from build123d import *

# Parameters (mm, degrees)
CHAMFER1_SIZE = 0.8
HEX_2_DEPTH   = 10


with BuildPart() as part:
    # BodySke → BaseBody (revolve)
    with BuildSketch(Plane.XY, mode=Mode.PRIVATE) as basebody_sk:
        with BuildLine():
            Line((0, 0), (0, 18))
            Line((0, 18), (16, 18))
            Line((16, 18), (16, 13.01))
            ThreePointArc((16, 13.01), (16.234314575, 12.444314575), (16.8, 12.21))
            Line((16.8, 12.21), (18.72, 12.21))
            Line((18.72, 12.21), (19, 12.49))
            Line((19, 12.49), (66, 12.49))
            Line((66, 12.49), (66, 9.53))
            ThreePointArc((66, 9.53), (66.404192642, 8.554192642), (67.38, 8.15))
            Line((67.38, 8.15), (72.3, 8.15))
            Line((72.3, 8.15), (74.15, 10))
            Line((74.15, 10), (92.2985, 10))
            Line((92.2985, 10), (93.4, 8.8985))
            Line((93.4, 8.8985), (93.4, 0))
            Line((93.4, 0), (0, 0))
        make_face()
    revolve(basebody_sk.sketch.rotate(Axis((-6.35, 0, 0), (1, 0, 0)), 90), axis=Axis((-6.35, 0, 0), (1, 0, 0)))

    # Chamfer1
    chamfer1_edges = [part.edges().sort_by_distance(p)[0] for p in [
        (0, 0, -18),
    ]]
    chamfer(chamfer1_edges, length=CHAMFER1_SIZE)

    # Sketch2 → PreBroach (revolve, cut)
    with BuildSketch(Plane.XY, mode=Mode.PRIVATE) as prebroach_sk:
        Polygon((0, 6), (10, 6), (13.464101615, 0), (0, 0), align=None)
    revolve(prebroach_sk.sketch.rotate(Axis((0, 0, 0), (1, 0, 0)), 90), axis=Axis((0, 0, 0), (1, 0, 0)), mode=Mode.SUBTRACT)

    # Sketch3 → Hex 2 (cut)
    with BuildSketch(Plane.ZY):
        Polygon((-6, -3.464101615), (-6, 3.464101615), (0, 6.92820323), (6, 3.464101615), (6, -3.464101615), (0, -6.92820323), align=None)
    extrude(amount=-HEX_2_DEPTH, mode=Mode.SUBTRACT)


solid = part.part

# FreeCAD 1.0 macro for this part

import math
import FreeCAD as App
import Part
import Sketcher
Q = App.Units.Quantity


def edges_at(feature, points):
    """Names of the edges that pass closest to the given points."""
    edges = feature.Shape.Edges
    near = lambda p: min(range(len(edges)), key=lambda i: edges[i].distToShape(Part.Vertex(*p))[0])
    return sorted({f"Edge{near(p) + 1}" for p in points})

doc = App.newDocument("Part")
body = doc.addObject("PartDesign::Body", "Body")

# Sketch on XY plane
sketch1 = body.newObject("Sketcher::SketchObject", "Sketch")
sketch1.AttachmentSupport = (doc.getObject("XY_Plane"), [""])
sketch1.MapMode = "FlatFace"
sketch1.addGeometry([
    Part.LineSegment(App.Vector(0, 18, 0), App.Vector(0, 0, 0)),  # 0
    Part.LineSegment(App.Vector(0, 0, 0), App.Vector(93.4, 0, 0)),  # 1
    Part.LineSegment(App.Vector(93.4, 0, 0), App.Vector(93.4, 8.8985, 0)),  # 2
    Part.LineSegment(App.Vector(93.4, 8.8985, 0), App.Vector(92.2985, 10, 0)),  # 3
    Part.LineSegment(App.Vector(92.2985, 10, 0), App.Vector(74.15, 10, 0)),  # 4
    Part.LineSegment(App.Vector(74.15, 10, 0), App.Vector(72.3, 8.15, 0)),  # 5
    Part.LineSegment(App.Vector(72.3, 8.15, 0), App.Vector(67.38, 8.15, 0)),  # 6
    Part.ArcOfCircle(Part.Circle(App.Vector(67.38, 9.53, 0), App.Vector(0, 0, 1), 1.38), math.radians(180), math.radians(270)),  # 7
    Part.LineSegment(App.Vector(66, 9.53, 0), App.Vector(66, 12.49, 0)),  # 8
    Part.LineSegment(App.Vector(66, 12.49, 0), App.Vector(19, 12.49, 0)),  # 9
    Part.LineSegment(App.Vector(19, 12.49, 0), App.Vector(18.72, 12.21, 0)),  # 10
    Part.LineSegment(App.Vector(18.72, 12.21, 0), App.Vector(16.8, 12.21, 0)),  # 11
    Part.ArcOfCircle(Part.Circle(App.Vector(16.8, 13.01, 0), App.Vector(0, 0, 1), 0.8), math.radians(180), math.radians(270)),  # 12
    Part.LineSegment(App.Vector(16, 13.01, 0), App.Vector(16, 18, 0)),  # 13
    Part.LineSegment(App.Vector(16, 18, 0), App.Vector(0, 18, 0)),  # 14
], False)
sketch1.addConstraint([
    Sketcher.Constraint("Coincident", 0, 2, 1, 1),
    Sketcher.Constraint("Coincident", 1, 2, 2, 1),
    Sketcher.Constraint("Coincident", 2, 2, 3, 1),
    Sketcher.Constraint("Coincident", 3, 2, 4, 1),
    Sketcher.Constraint("Coincident", 4, 2, 5, 1),
    Sketcher.Constraint("Coincident", 5, 2, 6, 1),
    Sketcher.Constraint("Tangent", 6, 2, 7, 2),
    Sketcher.Constraint("Tangent", 7, 1, 8, 1),
    Sketcher.Constraint("Coincident", 8, 2, 9, 1),
    Sketcher.Constraint("Coincident", 9, 2, 10, 1),
    Sketcher.Constraint("Coincident", 10, 2, 11, 1),
    Sketcher.Constraint("Tangent", 11, 2, 12, 2),
    Sketcher.Constraint("Tangent", 12, 1, 13, 1),
    Sketcher.Constraint("Coincident", 13, 2, 14, 1),
    Sketcher.Constraint("Coincident", 14, 2, 0, 1),
    Sketcher.Constraint("Vertical", 0),
    Sketcher.Constraint("Horizontal", 1),
    Sketcher.Constraint("Vertical", 2),
    Sketcher.Constraint("Horizontal", 4),
    Sketcher.Constraint("Horizontal", 6),
    Sketcher.Constraint("Vertical", 8),
    Sketcher.Constraint("Horizontal", 9),
    Sketcher.Constraint("Horizontal", 11),
    Sketcher.Constraint("Vertical", 13),
    Sketcher.Constraint("Horizontal", 14),
    Sketcher.Constraint("Coincident", 0, 2, -1, 1),
    Sketcher.Constraint("Perpendicular", 3, 5),
    Sketcher.Constraint("Parallel", 5, 10),
    Sketcher.Constraint("Radius", 12, Q("0.8 mm")),
    Sketcher.Constraint("DistanceX", 9, 2, 9, 1, Q("47 mm")),
    Sketcher.Constraint("DistanceX", 14, 2, 14, 1, Q("16 mm")),
    Sketcher.Constraint("DistanceY", 0, 2, 0, 1, Q("18 mm")),
    Sketcher.Constraint("Angle", 3, Q("135 deg")),
    Sketcher.Constraint("Radius", 7, Q("1.38 mm")),
    Sketcher.Constraint("DistanceX", 1, 1, 1, 2, Q("93.4 mm")),
    Sketcher.Constraint("DistanceY", -1, 1, 3, 2, Q("10 mm")),
    Sketcher.Constraint("DistanceX", -1, 1, 7, 1, Q("66 mm")),
    Sketcher.Constraint("DistanceX", 6, 2, 6, 1, Q("4.92 mm")),
    Sketcher.Constraint("DistanceX", 11, 2, 11, 1, Q("1.92 mm")),
    Sketcher.Constraint("DistanceY", 8, 1, 8, 2, Q("2.96 mm")),
    Sketcher.Constraint("DistanceY", 13, 1, 13, 2, Q("4.99 mm")),
    Sketcher.Constraint("DistanceX", 4, 2, 4, 1, Q("18.1485 mm")),
])
revolution = body.newObject("PartDesign::Revolution", "Revolution")
revolution.Profile = sketch1
revolution.ReferenceAxis = (sketch1, ["H_Axis"])
revolution.Angle = 360
doc.recompute()

chamfer = body.newObject("PartDesign::Chamfer", "Chamfer")
chamfer.Base = (revolution, edges_at(revolution, [(0, 0, -18)]))
chamfer.Size = 0.8

# Sketch on XY plane
sketch2 = body.newObject("Sketcher::SketchObject", "Sketch001")
sketch2.AttachmentSupport = (doc.getObject("XY_Plane"), [""])
sketch2.MapMode = "FlatFace"
sketch2.addGeometry([
    Part.LineSegment(App.Vector(10, 6, 0), App.Vector(0, 6, 0)),
    Part.LineSegment(App.Vector(0, 6, 0), App.Vector(0, 0, 0)),
    Part.LineSegment(App.Vector(0, 0, 0), App.Vector(13.464102, 0, 0)),
    Part.LineSegment(App.Vector(13.464102, 0, 0), App.Vector(10, 6, 0)),
], False)
sketch2.addConstraint([
    Sketcher.Constraint("Coincident", 0, 2, 1, 1),
    Sketcher.Constraint("Coincident", 1, 2, 2, 1),
    Sketcher.Constraint("Coincident", 2, 2, 3, 1),
    Sketcher.Constraint("Coincident", 3, 2, 0, 1),
    Sketcher.Constraint("Horizontal", 0),
    Sketcher.Constraint("Vertical", 1),
    Sketcher.Constraint("Horizontal", 2),
    Sketcher.Constraint("Coincident", 1, 2, -1, 1),
    Sketcher.Constraint("DistanceX", 0, 2, 0, 1, Q("10 mm")),
    Sketcher.Constraint("DistanceY", 1, 2, 1, 1, Q("6 mm")),
    Sketcher.Constraint("Angle", 3, Q("120 deg")),
])
groove = body.newObject("PartDesign::Groove", "Groove")
groove.Profile = sketch2
groove.ReferenceAxis = (sketch2, ["H_Axis"])
groove.Angle = 360

# Sketch on YZ plane
sketch3 = body.newObject("Sketcher::SketchObject", "Sketch002")
sketch3.AttachmentSupport = (doc.getObject("YZ_Plane"), [""])
sketch3.MapMode = "FlatFace"
sketch3.addGeometry([
    Part.LineSegment(App.Vector(3.464102, -6, 0), App.Vector(-3.464102, -6, 0)),  # 0
    Part.LineSegment(App.Vector(-3.464102, -6, 0), App.Vector(-6.928203, 0, 0)),  # 1
    Part.LineSegment(App.Vector(-6.928203, 0, 0), App.Vector(-3.464102, 6, 0)),  # 2
    Part.LineSegment(App.Vector(-3.464102, 6, 0), App.Vector(3.464102, 6, 0)),  # 3
    Part.LineSegment(App.Vector(3.464102, 6, 0), App.Vector(6.928203, 0, 0)),  # 4
    Part.LineSegment(App.Vector(6.928203, 0, 0), App.Vector(3.464102, -6, 0)),  # 5
], False)
sketch3.addConstraint([
    Sketcher.Constraint("Coincident", 0, 2, 1, 1),
    Sketcher.Constraint("Coincident", 1, 2, 2, 1),
    Sketcher.Constraint("Coincident", 2, 2, 3, 1),
    Sketcher.Constraint("Coincident", 3, 2, 4, 1),
    Sketcher.Constraint("Coincident", 4, 2, 5, 1),
    Sketcher.Constraint("Coincident", 5, 2, 0, 1),
    Sketcher.Constraint("Horizontal", 0),
    Sketcher.Constraint("Horizontal", 3),
    Sketcher.Constraint("Symmetric", 0, 2, 3, 2, -1, 1),
    Sketcher.Constraint("Symmetric", 1, 2, 4, 2, -1, 1),
    Sketcher.Constraint("PointOnObject", 1, 2, -1),
    Sketcher.Constraint("Parallel", 2, 5),
    Sketcher.Constraint("Vertical", 0, 2, 2, 2),
    Sketcher.Constraint("Angle", 1, Q("120 deg")),
    Sketcher.Constraint("DistanceY", 0, 2, -1, 1, Q("6 mm")),
    Sketcher.Constraint("DistanceX", 0, 2, -1, 1, Q("3.464102 mm")),
])
pocket1 = body.newObject("PartDesign::Pocket", "Pocket")
pocket1.Profile = sketch3
pocket1.Length = 10
pocket1.Reversed = True

doc.recompute()
